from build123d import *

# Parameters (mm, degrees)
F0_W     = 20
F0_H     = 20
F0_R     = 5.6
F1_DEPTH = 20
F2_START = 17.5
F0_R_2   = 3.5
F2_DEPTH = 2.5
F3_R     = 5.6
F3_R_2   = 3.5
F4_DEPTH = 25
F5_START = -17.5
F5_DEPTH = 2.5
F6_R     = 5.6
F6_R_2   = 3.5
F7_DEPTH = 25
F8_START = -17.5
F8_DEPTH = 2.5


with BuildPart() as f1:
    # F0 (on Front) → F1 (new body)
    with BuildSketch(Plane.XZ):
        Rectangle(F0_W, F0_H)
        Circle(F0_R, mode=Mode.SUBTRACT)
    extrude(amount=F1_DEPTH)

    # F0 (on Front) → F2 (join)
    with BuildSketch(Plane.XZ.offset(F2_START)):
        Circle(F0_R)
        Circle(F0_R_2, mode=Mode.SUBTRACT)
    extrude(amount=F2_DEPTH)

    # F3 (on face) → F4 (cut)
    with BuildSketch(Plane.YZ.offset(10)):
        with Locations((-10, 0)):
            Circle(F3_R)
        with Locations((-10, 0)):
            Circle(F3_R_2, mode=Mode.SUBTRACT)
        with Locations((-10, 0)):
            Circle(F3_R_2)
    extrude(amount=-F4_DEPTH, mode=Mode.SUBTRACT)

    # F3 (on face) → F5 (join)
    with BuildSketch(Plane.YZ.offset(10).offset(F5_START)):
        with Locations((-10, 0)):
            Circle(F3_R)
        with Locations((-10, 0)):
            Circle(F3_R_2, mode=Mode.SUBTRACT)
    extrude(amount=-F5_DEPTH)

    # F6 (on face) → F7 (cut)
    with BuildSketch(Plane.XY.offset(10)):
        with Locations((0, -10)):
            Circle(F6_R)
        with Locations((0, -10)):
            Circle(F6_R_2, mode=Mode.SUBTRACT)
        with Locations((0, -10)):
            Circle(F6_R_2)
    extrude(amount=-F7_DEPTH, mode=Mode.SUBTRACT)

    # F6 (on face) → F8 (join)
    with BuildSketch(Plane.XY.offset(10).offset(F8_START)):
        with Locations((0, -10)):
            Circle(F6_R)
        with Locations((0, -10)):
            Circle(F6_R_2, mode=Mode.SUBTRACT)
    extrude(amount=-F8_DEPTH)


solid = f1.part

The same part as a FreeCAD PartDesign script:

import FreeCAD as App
import Part
import Sketcher


def add_polygon(sketch, points):
    """Adds a closed chain of lines whose ends are joined by coincident constraints."""
    first, n = sketch.GeometryCount, len(points)
    for a, b in zip(points, points[1:] + points[:1]):
        sketch.addGeometry(Part.LineSegment(App.Vector(*a, 0), App.Vector(*b, 0)), False)
    for i in range(n):
        sketch.addConstraint(Sketcher.Constraint("Coincident", first + i, 2, first + (i + 1) % n, 1))

doc = App.newDocument("Part")
params = doc.addObject("Spreadsheet::Sheet", "Params")
for row, (alias, value) in enumerate([
    ("sketch1_diameter", "11.2 mm"),
    ("sketch1_width", "20 mm"),
    ("pad1_length", "20 mm"),
    ("sketch2_diameter", "7 mm"),
    ("sketch2_diameter2", "11.2 mm"),
    ("pad2_length", "2.5 mm"),
    ("sketch3_diameter", "11.2 mm"),
    ("pocket1_length", "25 mm"),
    ("sketch4_diameter", "7 mm"),
    ("sketch4_diameter2", "11.2 mm"),
    ("pad3_length", "2.5 mm"),
    ("sketch5_diameter", "11.2 mm"),
    ("pocket2_length", "25 mm"),
    ("sketch6_diameter", "7 mm"),
    ("sketch6_diameter2", "11.2 mm"),
    ("pad4_length", "2.5 mm"),
], start=1):
    params.set(f"A{row}", alias)
    params.set(f"B{row}", "=" + value)
    params.setAlias(f"B{row}", alias)

body = doc.addObject("PartDesign::Body", "Body")

# Sketch on XZ plane
sketch1 = body.newObject("Sketcher::SketchObject", "Sketch")
sketch1.AttachmentSupport = (doc.getObject("XZ_Plane"), [""])
sketch1.MapMode = "FlatFace"
add_polygon(sketch1, [(-10, 10), (-10, -10), (10, -10), (10, 10)])  # lines 0-3
sketch1.addGeometry(Part.Circle(App.Vector(0, 0, 0), App.Vector(0, 0, 1), 6), False)  # 4
sketch1.addConstraint([
    Sketcher.Constraint("Vertical", 0),
    Sketcher.Constraint("Horizontal", 1),
    Sketcher.Constraint("Vertical", 2),
    Sketcher.Constraint("Horizontal", 3),
    Sketcher.Constraint("Coincident", 4, 3, -1, 1),
    Sketcher.Constraint("Symmetric", 0, 2, 2, 2, -1, 1),
    Sketcher.Constraint("Equal", 3, 0),
    Sketcher.Constraint("Diameter", 4, 11.2),
    Sketcher.Constraint("DistanceX", 1, 1, 1, 2, 20.0),
])
sketch1.setExpression("Constraints[11]", "Params.sketch1_diameter")
sketch1.setExpression("Constraints[12]", "Params.sketch1_width")
pad1 = body.newObject("PartDesign::Pad", "Pad")
pad1.Profile = sketch1
pad1.setExpression("Length", "Params.pad1_length")

# Sketch on XZ plane
sketch2 = body.newObject("Sketcher::SketchObject", "Sketch001")
sketch2.AttachmentSupport = (doc.getObject("XZ_Plane"), [""])
sketch2.MapMode = "FlatFace"
sketch2.AttachmentOffset = App.Placement(App.Vector(0, 0, 17.5), App.Rotation())
sketch2.addGeometry([
    Part.Circle(App.Vector(0, 0, 0), App.Vector(0, 0, 1), 5.6),
    Part.Circle(App.Vector(0, 0, 0), App.Vector(0, 0, 1), 3.5),
], False)
sketch2.addConstraint([
    Sketcher.Constraint("Coincident", 0, 3, -1, 1),
    Sketcher.Constraint("Coincident", 1, 3, -1, 1),
    Sketcher.Constraint("Diameter", 1, 7.0),
    Sketcher.Constraint("Diameter", 0, 11.2),
])
sketch2.setExpression("Constraints[2]", "Params.sketch2_diameter")
sketch2.setExpression("Constraints[3]", "Params.sketch2_diameter2")
pad2 = body.newObject("PartDesign::Pad", "Pad001")
pad2.Profile = sketch2
pad2.setExpression("Length", "Params.pad2_length")

# Sketch on YZ plane
sketch3 = body.newObject("Sketcher::SketchObject", "Sketch002")
sketch3.AttachmentSupport = (doc.getObject("YZ_Plane"), [""])
sketch3.MapMode = "FlatFace"
sketch3.AttachmentOffset = App.Placement(App.Vector(0, 0, 10), App.Rotation())
sketch3.addGeometry(Part.Circle(App.Vector(-10, 0, 0), App.Vector(0, 0, 1), 6), False)
sketch3.addConstraint([
    Sketcher.Constraint("PointOnObject", 0, 3, -1),
    Sketcher.Constraint("Diameter", 0, 11.2),
    Sketcher.Constraint("DistanceX", 0, 3, -1, 1, 10.0),
])
sketch3.setExpression("Constraints[1]", "Params.sketch3_diameter")
pocket1 = body.newObject("PartDesign::Pocket", "Pocket")
pocket1.Profile = sketch3
pocket1.setExpression("Length", "Params.pocket1_length")

# Sketch on YZ plane
sketch4 = body.newObject("Sketcher::SketchObject", "Sketch003")
sketch4.AttachmentSupport = (doc.getObject("YZ_Plane"), [""])
sketch4.MapMode = "FlatFace"
sketch4.AttachmentOffset = App.Placement(App.Vector(0, 0, -7.5), App.Rotation())
sketch4.addGeometry([
    Part.Circle(App.Vector(-10, 0, 0), App.Vector(0, 0, 1), 5.6),
    Part.Circle(App.Vector(-10, 0, 0), App.Vector(0, 0, 1), 3.5),
], False)
sketch4.addConstraint([
    Sketcher.Constraint("Coincident", 1, 3, 0, 3),
    Sketcher.Constraint("PointOnObject", 0, 3, -1),
    Sketcher.Constraint("Diameter", 1, 7.0),
    Sketcher.Constraint("Diameter", 0, 11.2),
    Sketcher.Constraint("DistanceX", 0, 3, -1, 1, 10.0),
])
sketch4.setExpression("Constraints[2]", "Params.sketch4_diameter")
sketch4.setExpression("Constraints[3]", "Params.sketch4_diameter2")
pad3 = body.newObject("PartDesign::Pad", "Pad002")
pad3.Profile = sketch4
pad3.setExpression("Length", "Params.pad3_length")
pad3.Reversed = True

# Sketch on XY plane
sketch5 = body.newObject("Sketcher::SketchObject", "Sketch004")
sketch5.AttachmentSupport = (doc.getObject("XY_Plane"), [""])
sketch5.MapMode = "FlatFace"
sketch5.AttachmentOffset = App.Placement(App.Vector(0, 0, 10), App.Rotation())
sketch5.addGeometry(Part.Circle(App.Vector(0, -10, 0), App.Vector(0, 0, 1), 6), False)
sketch5.addConstraint([
    Sketcher.Constraint("PointOnObject", 0, 3, -2),
    Sketcher.Constraint("Diameter", 0, 11.2),
    Sketcher.Constraint("DistanceY", 0, 3, -1, 1, 10.0),
])
sketch5.setExpression("Constraints[1]", "Params.sketch5_diameter")
pocket2 = body.newObject("PartDesign::Pocket", "Pocket001")
pocket2.Profile = sketch5
pocket2.setExpression("Length", "Params.pocket2_length")

# Sketch on XY plane
sketch6 = body.newObject("Sketcher::SketchObject", "Sketch005")
sketch6.AttachmentSupport = (doc.getObject("XY_Plane"), [""])
sketch6.MapMode = "FlatFace"
sketch6.AttachmentOffset = App.Placement(App.Vector(0, 0, -7.5), App.Rotation())
sketch6.addGeometry([
    Part.Circle(App.Vector(0, -10, 0), App.Vector(0, 0, 1), 5.6),
    Part.Circle(App.Vector(0, -10, 0), App.Vector(0, 0, 1), 3.5),
], False)
sketch6.addConstraint([
    Sketcher.Constraint("Coincident", 1, 3, 0, 3),
    Sketcher.Constraint("PointOnObject", 0, 3, -2),
    Sketcher.Constraint("Diameter", 1, 7.0),
    Sketcher.Constraint("Diameter", 0, 11.2),
    Sketcher.Constraint("DistanceY", 0, 3, -1, 1, 10.0),
])
sketch6.setExpression("Constraints[2]", "Params.sketch6_diameter")
sketch6.setExpression("Constraints[3]", "Params.sketch6_diameter2")
pad4 = body.newObject("PartDesign::Pad", "Pad003")
pad4.Profile = sketch6
pad4.setExpression("Length", "Params.pad4_length")
pad4.Reversed = True

doc.recompute()
